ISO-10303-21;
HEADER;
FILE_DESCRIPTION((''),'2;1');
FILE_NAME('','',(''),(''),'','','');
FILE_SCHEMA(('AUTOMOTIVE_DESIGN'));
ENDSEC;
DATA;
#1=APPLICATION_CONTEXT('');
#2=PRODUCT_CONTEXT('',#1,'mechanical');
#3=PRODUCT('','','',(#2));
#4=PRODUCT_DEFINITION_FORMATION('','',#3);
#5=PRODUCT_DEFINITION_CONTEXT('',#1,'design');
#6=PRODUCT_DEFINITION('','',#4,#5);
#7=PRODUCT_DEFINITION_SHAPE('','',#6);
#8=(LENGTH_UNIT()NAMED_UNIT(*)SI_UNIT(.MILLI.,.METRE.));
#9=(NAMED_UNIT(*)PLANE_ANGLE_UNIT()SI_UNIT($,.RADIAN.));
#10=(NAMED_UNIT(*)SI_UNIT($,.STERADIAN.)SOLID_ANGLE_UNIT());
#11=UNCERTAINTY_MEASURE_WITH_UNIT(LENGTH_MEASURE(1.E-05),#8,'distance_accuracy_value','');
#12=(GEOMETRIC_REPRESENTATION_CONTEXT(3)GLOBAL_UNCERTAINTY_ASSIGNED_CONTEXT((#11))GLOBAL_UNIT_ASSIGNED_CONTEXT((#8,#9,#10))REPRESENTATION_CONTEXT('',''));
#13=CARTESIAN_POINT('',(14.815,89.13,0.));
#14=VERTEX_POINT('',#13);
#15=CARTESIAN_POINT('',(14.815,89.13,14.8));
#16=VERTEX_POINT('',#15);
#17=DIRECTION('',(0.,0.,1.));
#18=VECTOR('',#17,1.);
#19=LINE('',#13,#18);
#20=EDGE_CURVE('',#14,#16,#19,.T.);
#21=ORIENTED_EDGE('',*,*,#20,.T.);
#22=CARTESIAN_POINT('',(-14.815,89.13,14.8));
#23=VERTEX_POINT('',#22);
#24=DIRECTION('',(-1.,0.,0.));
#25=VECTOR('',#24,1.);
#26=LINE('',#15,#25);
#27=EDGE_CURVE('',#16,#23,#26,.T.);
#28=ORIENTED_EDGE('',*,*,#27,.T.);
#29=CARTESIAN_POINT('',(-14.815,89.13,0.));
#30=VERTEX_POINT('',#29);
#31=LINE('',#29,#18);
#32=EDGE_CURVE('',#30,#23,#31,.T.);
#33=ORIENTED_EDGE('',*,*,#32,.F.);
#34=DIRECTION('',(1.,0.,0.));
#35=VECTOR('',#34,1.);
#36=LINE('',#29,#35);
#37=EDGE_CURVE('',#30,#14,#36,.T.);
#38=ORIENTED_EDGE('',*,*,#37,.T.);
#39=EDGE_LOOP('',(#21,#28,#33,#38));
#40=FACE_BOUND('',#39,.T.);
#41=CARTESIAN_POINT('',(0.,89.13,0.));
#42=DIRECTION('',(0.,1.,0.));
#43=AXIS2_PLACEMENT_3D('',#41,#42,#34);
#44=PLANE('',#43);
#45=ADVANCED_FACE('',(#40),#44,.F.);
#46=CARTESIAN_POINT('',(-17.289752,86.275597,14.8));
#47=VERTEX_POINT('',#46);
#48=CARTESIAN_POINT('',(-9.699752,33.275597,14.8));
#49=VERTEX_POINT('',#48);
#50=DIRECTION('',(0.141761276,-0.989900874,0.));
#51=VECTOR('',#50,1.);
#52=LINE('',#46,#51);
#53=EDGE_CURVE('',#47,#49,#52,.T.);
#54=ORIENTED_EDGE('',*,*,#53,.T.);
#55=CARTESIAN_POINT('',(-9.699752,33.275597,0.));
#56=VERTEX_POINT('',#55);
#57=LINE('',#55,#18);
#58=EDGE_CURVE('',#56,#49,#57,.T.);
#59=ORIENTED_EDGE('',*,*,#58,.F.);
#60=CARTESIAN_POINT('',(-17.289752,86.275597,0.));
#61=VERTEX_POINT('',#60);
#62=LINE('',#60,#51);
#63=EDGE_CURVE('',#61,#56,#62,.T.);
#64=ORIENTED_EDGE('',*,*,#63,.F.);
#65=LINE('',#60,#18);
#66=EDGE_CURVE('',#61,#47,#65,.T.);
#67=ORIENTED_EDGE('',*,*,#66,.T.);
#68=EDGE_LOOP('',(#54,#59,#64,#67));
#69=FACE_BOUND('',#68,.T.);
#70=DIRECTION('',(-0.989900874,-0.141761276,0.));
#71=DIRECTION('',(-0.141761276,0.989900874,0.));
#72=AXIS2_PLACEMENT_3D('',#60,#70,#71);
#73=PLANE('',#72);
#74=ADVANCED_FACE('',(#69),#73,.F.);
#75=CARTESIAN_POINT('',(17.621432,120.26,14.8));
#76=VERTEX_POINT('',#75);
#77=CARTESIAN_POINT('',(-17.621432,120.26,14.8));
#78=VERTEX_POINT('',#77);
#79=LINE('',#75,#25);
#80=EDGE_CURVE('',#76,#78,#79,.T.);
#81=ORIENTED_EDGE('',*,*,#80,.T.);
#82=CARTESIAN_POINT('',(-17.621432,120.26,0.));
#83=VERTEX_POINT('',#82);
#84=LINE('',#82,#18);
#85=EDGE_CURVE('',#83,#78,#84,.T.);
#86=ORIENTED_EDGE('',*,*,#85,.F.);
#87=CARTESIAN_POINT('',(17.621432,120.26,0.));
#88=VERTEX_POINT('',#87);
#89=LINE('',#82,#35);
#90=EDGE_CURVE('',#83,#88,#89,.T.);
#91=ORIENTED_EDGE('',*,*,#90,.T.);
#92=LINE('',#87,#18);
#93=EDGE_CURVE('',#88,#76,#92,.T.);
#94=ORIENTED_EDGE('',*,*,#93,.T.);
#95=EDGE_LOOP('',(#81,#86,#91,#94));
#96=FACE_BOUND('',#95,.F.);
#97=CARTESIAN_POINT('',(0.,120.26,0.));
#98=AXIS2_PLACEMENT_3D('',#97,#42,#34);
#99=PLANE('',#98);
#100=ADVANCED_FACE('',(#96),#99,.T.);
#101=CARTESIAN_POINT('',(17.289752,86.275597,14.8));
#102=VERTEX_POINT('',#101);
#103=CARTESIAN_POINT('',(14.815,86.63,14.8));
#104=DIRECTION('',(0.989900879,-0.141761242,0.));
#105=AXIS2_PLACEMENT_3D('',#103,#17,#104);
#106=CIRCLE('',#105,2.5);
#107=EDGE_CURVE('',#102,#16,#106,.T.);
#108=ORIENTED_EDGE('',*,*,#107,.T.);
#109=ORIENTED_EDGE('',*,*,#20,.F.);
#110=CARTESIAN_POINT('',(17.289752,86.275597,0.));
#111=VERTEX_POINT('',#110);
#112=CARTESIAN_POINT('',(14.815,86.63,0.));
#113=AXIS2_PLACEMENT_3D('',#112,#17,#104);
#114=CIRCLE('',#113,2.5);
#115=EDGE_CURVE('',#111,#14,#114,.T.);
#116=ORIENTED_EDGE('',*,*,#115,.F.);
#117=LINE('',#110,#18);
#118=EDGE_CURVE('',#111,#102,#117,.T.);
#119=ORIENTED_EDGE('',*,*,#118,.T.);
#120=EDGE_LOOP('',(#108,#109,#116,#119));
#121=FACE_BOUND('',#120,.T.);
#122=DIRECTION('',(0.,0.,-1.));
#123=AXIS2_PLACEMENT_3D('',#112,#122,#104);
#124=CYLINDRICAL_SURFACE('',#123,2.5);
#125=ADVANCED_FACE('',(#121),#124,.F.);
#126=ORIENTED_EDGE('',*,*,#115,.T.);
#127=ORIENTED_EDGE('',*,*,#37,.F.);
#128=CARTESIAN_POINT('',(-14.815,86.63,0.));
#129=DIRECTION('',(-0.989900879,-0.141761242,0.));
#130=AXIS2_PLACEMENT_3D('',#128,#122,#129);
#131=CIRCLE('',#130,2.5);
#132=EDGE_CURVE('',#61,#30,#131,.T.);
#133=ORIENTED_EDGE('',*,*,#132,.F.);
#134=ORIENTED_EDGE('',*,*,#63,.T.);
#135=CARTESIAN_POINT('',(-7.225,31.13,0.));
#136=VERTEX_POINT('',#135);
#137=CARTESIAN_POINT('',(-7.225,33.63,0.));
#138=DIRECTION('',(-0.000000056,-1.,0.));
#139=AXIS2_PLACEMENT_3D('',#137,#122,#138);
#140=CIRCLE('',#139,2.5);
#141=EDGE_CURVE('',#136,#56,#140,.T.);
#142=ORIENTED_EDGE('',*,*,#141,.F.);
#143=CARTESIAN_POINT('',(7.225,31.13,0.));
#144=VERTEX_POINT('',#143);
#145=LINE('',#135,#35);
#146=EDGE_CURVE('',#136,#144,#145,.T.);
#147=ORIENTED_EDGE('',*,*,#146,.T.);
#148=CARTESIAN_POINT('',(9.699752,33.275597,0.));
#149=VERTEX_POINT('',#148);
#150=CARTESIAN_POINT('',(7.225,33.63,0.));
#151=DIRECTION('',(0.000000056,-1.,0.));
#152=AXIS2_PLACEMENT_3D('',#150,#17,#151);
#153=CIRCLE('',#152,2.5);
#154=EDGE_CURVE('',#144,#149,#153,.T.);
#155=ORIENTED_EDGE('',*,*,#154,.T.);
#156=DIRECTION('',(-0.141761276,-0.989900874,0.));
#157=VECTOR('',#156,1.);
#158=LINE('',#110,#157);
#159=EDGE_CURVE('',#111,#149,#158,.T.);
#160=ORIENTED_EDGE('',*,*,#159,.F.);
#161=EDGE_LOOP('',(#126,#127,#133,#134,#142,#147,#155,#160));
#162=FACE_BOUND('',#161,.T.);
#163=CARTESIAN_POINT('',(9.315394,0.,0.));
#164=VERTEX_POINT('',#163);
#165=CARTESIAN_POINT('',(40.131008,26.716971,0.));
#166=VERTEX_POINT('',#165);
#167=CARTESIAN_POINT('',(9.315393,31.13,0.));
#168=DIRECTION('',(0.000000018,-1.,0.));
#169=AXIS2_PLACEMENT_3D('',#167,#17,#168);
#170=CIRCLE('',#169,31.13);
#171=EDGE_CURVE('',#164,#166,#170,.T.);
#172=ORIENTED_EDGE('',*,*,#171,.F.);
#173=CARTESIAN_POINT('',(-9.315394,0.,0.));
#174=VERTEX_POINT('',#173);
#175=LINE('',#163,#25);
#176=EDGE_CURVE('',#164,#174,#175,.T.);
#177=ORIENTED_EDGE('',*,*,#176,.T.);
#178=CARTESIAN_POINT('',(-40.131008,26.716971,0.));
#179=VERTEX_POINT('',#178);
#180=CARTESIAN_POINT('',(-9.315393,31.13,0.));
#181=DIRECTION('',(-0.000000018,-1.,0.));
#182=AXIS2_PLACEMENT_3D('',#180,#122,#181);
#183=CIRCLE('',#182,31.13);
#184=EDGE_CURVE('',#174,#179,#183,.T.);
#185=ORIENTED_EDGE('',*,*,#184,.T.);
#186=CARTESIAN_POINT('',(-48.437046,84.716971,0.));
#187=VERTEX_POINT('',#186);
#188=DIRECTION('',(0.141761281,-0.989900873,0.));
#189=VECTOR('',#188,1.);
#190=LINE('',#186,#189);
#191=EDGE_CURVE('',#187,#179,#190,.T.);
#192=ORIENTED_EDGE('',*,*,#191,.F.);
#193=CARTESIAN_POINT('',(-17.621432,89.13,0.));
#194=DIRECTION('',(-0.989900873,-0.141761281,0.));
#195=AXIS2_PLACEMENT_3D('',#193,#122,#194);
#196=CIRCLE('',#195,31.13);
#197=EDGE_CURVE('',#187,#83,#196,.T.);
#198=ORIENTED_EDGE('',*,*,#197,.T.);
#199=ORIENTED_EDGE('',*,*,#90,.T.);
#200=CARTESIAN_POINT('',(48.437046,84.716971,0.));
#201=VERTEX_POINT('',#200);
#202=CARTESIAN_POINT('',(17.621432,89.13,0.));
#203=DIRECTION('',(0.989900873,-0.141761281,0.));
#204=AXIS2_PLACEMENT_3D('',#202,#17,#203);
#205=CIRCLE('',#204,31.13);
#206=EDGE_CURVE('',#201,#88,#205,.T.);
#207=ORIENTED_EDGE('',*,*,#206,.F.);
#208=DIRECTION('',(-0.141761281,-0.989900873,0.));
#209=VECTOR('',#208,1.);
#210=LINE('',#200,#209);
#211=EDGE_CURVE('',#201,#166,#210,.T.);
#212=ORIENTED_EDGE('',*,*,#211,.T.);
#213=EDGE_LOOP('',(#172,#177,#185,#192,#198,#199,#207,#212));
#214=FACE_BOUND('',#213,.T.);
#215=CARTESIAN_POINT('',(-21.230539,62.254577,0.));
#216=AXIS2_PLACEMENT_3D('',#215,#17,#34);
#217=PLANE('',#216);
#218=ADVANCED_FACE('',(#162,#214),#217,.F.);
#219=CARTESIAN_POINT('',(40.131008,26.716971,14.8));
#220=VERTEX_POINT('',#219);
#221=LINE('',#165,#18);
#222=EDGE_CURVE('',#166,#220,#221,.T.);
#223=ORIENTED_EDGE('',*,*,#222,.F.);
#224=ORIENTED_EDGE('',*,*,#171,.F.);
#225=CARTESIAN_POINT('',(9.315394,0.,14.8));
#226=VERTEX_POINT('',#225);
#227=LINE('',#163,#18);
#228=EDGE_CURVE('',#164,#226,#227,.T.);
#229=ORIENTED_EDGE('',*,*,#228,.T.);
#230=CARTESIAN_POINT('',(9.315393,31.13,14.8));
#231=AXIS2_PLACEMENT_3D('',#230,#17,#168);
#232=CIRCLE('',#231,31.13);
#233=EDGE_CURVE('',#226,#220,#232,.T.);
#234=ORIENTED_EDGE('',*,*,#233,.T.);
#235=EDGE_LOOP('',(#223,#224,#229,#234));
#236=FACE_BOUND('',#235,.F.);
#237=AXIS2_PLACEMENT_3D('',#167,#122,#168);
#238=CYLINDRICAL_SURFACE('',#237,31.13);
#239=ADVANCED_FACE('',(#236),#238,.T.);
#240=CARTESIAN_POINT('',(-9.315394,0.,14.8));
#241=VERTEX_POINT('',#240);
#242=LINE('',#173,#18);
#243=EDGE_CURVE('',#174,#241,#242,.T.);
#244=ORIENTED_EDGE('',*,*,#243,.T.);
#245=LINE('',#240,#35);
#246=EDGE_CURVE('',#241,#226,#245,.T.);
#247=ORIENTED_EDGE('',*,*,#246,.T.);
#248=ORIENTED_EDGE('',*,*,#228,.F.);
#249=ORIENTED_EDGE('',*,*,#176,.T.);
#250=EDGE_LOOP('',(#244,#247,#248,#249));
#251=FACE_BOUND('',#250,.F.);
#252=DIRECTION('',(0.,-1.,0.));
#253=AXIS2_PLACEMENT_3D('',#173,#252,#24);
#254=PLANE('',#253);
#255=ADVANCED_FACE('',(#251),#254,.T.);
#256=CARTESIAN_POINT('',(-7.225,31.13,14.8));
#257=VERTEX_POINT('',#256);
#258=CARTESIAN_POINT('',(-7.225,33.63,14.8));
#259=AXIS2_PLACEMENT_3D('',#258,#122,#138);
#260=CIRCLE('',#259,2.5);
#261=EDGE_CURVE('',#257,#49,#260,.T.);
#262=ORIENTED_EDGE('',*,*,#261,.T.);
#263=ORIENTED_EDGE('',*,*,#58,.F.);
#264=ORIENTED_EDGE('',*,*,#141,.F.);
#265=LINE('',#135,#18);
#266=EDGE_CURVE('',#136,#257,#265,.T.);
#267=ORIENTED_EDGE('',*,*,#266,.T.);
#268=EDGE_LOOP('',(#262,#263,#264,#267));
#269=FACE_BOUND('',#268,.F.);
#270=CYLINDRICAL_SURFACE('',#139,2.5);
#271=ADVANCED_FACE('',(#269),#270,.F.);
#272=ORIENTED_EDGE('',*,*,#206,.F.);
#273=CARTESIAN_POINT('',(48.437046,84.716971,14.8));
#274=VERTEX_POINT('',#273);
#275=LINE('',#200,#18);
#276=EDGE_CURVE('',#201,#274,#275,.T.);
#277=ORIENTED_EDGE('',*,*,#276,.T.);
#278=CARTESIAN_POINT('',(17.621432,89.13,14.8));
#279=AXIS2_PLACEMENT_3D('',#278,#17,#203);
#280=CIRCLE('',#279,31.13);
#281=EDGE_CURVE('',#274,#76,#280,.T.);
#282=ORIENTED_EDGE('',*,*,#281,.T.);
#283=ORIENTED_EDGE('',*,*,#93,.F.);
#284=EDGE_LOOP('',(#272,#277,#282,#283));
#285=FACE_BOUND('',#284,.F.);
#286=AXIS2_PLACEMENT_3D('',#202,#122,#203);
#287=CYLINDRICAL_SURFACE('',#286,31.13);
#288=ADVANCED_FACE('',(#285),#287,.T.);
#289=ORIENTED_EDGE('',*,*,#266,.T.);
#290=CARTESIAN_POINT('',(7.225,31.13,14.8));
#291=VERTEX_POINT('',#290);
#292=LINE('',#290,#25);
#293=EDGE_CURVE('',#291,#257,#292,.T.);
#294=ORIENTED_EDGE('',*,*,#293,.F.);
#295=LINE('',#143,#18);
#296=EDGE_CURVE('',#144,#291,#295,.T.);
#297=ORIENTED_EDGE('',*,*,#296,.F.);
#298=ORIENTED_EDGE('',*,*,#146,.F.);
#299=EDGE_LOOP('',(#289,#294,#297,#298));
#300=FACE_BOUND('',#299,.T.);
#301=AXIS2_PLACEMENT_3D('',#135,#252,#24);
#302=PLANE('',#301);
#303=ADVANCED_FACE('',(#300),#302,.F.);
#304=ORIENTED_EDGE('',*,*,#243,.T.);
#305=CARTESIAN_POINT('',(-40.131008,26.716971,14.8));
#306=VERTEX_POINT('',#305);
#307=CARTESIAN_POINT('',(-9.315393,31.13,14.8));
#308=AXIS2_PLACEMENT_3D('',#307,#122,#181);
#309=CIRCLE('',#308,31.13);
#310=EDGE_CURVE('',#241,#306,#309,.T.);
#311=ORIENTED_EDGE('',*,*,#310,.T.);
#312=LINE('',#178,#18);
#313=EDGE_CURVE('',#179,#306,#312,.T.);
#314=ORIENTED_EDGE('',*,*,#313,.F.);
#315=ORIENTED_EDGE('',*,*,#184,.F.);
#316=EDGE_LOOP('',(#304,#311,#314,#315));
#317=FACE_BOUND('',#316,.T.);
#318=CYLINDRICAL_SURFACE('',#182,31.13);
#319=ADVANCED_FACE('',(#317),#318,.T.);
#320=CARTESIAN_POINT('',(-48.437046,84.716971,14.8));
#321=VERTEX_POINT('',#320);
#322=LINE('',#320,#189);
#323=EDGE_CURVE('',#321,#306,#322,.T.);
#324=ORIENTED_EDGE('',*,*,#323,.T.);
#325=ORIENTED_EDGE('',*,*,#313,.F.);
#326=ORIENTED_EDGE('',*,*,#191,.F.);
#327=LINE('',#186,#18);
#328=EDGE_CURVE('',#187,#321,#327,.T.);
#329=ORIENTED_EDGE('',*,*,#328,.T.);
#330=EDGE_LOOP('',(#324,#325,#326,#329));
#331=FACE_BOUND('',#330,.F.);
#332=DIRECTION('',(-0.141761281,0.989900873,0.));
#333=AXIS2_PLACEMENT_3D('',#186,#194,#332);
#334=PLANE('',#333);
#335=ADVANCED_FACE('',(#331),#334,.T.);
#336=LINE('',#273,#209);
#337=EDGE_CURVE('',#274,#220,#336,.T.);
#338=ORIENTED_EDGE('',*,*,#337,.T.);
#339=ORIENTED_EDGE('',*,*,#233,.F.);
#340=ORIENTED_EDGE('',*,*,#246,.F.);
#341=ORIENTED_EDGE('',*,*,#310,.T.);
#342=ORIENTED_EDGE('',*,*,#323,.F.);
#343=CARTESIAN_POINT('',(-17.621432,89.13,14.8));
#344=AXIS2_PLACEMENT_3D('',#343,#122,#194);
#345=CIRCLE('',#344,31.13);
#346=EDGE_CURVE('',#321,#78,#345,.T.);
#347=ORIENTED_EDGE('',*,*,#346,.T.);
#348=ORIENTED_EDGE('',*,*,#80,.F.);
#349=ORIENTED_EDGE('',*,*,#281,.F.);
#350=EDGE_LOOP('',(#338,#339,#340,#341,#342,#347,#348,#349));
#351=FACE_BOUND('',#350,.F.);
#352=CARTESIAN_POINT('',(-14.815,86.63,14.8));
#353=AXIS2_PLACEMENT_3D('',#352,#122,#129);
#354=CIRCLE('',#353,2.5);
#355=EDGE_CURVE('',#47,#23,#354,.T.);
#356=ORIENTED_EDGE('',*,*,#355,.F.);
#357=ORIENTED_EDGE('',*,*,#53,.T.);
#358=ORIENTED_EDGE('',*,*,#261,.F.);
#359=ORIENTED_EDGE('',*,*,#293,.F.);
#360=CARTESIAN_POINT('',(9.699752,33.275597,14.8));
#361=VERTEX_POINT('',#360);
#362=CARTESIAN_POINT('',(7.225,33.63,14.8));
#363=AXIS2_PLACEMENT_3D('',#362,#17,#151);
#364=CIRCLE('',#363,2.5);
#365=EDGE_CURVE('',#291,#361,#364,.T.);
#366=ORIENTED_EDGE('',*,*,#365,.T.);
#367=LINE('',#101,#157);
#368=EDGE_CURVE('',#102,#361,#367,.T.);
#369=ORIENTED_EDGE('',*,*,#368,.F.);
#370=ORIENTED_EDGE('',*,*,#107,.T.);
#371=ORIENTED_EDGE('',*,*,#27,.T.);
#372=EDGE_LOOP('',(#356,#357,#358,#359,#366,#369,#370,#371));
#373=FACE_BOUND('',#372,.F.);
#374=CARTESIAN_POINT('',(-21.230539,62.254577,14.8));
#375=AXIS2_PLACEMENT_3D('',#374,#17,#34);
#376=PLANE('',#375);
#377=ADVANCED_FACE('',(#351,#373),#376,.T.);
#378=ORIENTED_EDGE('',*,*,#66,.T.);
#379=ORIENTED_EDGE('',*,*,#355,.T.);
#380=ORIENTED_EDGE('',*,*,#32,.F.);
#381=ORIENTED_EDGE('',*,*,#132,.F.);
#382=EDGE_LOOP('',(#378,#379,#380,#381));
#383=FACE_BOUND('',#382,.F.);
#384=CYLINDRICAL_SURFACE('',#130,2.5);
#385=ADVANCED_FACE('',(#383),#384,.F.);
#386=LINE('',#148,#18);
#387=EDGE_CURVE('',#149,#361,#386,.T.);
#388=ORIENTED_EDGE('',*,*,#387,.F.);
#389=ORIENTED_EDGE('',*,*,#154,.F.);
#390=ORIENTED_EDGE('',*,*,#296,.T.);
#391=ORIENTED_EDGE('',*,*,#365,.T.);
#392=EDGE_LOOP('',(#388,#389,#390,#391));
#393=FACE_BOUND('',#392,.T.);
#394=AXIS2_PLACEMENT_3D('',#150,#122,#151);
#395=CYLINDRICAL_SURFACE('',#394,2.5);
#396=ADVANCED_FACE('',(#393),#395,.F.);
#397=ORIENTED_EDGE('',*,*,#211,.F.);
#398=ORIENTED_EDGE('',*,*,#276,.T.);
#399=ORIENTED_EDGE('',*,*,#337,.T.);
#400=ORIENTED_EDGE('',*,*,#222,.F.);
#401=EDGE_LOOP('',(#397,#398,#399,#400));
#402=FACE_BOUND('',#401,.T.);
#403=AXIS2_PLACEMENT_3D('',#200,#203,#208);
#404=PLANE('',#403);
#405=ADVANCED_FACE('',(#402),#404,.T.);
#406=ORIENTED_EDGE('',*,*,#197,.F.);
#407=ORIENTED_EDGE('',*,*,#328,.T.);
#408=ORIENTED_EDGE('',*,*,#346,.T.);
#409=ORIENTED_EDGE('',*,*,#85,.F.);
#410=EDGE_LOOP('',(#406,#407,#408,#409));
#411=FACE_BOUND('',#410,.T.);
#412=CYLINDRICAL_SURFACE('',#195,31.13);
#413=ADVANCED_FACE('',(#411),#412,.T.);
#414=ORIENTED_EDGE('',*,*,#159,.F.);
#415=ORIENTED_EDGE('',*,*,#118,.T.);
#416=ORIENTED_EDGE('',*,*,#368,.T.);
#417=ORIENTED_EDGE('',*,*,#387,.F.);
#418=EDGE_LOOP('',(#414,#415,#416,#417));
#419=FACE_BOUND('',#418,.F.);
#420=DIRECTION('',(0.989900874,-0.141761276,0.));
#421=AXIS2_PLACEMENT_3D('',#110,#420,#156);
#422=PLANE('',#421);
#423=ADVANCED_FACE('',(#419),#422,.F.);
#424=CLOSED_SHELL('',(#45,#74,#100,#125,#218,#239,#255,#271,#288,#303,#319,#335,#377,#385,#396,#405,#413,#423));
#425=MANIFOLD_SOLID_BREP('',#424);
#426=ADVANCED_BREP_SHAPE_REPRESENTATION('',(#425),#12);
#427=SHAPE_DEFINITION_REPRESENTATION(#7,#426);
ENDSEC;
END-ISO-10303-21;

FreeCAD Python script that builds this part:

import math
import FreeCAD as App
import Part
import Sketcher

V = App.Vector
Q = App.Units.Quantity

doc = App.newDocument("Part")
body = doc.addObject("PartDesign::Body", "Body")

# Sketch on XY plane
sketch1 = doc.addObject("Sketcher::SketchObject", "Sketch")
body.addObject(sketch1)
sketch1.AttachmentSupport = (doc.XY_Plane, [""])
sketch1.MapMode = "FlatFace"
sketch1.addGeometry([
    Part.LineSegment(V(0, 89.13, 0), V(14.815, 89.13, 0)),  # 0
    Part.ArcOfCircle(Part.Circle(V(14.815, 86.63, 0), V(0, 0, 1), 2.5), math.radians(-8.149775), math.radians(89.999998)),  # 1
    Part.LineSegment(V(17.289752, 86.275597, 0), V(9.699752, 33.275597, 0)),  # 2
    Part.ArcOfCircle(Part.Circle(V(7.225, 33.63, 0), V(0, 0, 1), 2.5), math.radians(-89.999997), math.radians(-8.14977)),  # 3
    Part.LineSegment(V(7.225, 31.13, 0), V(0, 31.13, 0)),  # 4
    Part.LineSegment(V(0, 31.13, 0), V(0, 0, 0)),  # 5
    Part.LineSegment(V(0, 0, 0), V(9.315394, 0, 0)),  # 6
    Part.ArcOfCircle(Part.Circle(V(9.315393, 31.13, 0), V(0, 0, 1), 31.13), math.radians(-89.999999), math.radians(-8.149778)),  # 7
    Part.LineSegment(V(40.131008, 26.716971, 0), V(48.437046, 84.716971, 0)),  # 8
    Part.ArcOfCircle(Part.Circle(V(17.621432, 89.13, 0), V(0, 0, 1), 31.13), math.radians(-8.149777), math.radians(89.999999)),  # 9
    Part.LineSegment(V(17.621432, 120.26, 0), V(0, 120.26, 0)),  # 10
    Part.LineSegment(V(0, 120.26, 0), V(0, 89.13, 0)),  # 11
], False)
sketch1.addConstraint([
    Sketcher.Constraint("Tangent", 0, 2, 1, 2),
    Sketcher.Constraint("Tangent", 1, 1, 2, 1),
    Sketcher.Constraint("Tangent", 2, 2, 3, 2),
    Sketcher.Constraint("Tangent", 3, 1, 4, 1),
    Sketcher.Constraint("Coincident", 4, 2, 5, 1),
    Sketcher.Constraint("Coincident", 5, 2, 6, 1),
    Sketcher.Constraint("Tangent", 6, 2, 7, 1),
    Sketcher.Constraint("Tangent", 7, 2, 8, 1),
    Sketcher.Constraint("Tangent", 8, 2, 9, 1),
    Sketcher.Constraint("Tangent", 9, 2, 10, 1),
    Sketcher.Constraint("Coincident", 10, 2, 11, 1),
    Sketcher.Constraint("Coincident", 11, 2, 0, 1),
    Sketcher.Constraint("Horizontal", 0),
    Sketcher.Constraint("Horizontal", 4),
    Sketcher.Constraint("Vertical", 5),
    Sketcher.Constraint("Horizontal", 6),
    Sketcher.Constraint("Horizontal", 10),
    Sketcher.Constraint("Vertical", 11),
    Sketcher.Constraint("Coincident", 5, 2, -1, 1),
    Sketcher.Constraint("Equal", 1, 3),
    Sketcher.Constraint("Equal", 7, 9),
    Sketcher.Constraint("PointOnObject", 10, 2, -2),
    Sketcher.Constraint("Parallel", 2, 8),
    Sketcher.Constraint("Horizontal", 9, 3, 0, 2),
    Sketcher.Constraint("Horizontal", 7, 3, 3, 1),
    Sketcher.Constraint("Radius", 1, Q("2.5 mm")),
    Sketcher.Constraint("Radius", 7, Q("31.13 mm")),
    Sketcher.Constraint("DistanceY", 3, 3, 1, 3, Q("53 mm")),
    Sketcher.Constraint("DistanceX", 0, 1, 0, 2, Q("14.815 mm")),
    Sketcher.Constraint("DistanceX", 4, 2, 4, 1, Q("7.225 mm")),
    Sketcher.Constraint("DistanceX", 10, 2, 10, 1, Q("17.621432 mm")),
])
pad1 = doc.addObject("PartDesign::Pad", "Pad")
body.addObject(pad1)
pad1.Profile = sketch1
pad1.Length = 14.8
doc.recompute()

mirrored = doc.addObject("PartDesign::Mirrored", "Mirrored")
body.addObject(mirrored)
mirrored.Originals = [pad1]
mirrored.MirrorPlane = (doc.YZ_Plane, [""])
body.Tip = mirrored

doc.recompute()
